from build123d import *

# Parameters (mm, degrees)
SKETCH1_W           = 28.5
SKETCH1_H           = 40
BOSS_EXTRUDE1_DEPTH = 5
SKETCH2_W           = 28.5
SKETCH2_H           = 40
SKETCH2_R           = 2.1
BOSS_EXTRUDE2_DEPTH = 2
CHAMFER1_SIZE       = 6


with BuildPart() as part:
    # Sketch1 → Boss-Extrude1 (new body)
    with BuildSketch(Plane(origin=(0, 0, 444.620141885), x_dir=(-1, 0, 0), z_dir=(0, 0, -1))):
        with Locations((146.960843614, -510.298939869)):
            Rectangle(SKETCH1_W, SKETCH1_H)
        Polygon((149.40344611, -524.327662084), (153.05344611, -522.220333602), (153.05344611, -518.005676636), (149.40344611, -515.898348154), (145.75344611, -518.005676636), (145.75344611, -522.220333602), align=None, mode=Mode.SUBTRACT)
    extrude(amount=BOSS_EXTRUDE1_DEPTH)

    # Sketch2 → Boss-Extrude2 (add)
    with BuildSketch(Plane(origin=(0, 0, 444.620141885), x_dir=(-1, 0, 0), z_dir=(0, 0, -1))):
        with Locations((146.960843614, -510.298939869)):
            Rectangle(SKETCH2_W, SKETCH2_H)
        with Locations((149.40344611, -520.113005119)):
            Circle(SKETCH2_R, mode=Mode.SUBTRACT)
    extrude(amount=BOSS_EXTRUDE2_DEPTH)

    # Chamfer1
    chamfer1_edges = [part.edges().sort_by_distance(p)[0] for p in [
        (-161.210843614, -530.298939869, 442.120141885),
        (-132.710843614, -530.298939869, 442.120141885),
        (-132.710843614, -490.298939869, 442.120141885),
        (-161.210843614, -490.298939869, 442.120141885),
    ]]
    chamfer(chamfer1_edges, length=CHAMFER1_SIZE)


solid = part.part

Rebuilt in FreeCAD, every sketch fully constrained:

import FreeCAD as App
import Part
import Sketcher
Q = App.Units.Quantity


def edges_at(feature, points):
    """Names of the edges that pass closest to the given points."""
    edges = feature.Shape.Edges
    near = lambda p: min(range(len(edges)), key=lambda i: edges[i].distToShape(Part.Vertex(*p))[0])
    return sorted({f"Edge{near(p) + 1}" for p in points})

doc = App.newDocument("Part")
body = doc.addObject("PartDesign::Body", "Body")

# Sketch on XY plane
sketch1 = body.newObject("Sketcher::SketchObject", "Sketch")
sketch1.AttachmentSupport = (doc.getObject("XY_Plane"), [""])
sketch1.MapMode = "FlatFace"
sketch1.AttachmentOffset = App.Placement(App.Vector(0, 0, 444.620142), App.Rotation())
sketch1.addGeometry([
    Part.LineSegment(App.Vector(-132.710844, -490.29894, 0), App.Vector(-132.710844, -530.29894, 0)),  # 0
    Part.LineSegment(App.Vector(-132.710844, -530.29894, 0), App.Vector(-161.210844, -530.29894, 0)),  # 1
    Part.LineSegment(App.Vector(-161.210844, -530.29894, 0), App.Vector(-161.210844, -490.29894, 0)),  # 2
    Part.LineSegment(App.Vector(-161.210844, -490.29894, 0), App.Vector(-132.710844, -490.29894, 0)),  # 3
    Part.LineSegment(App.Vector(-153.053446, -522.220334, 0), App.Vector(-149.403446, -524.327662, 0)),  # 4
    Part.LineSegment(App.Vector(-149.403446, -524.327662, 0), App.Vector(-145.753446, -522.220334, 0)),  # 5
    Part.LineSegment(App.Vector(-145.753446, -522.220334, 0), App.Vector(-145.753446, -518.005677, 0)),  # 6
    Part.LineSegment(App.Vector(-145.753446, -518.005677, 0), App.Vector(-149.403446, -515.898348, 0)),  # 7
    Part.LineSegment(App.Vector(-149.403446, -515.898348, 0), App.Vector(-153.053446, -518.005677, 0)),  # 8
    Part.LineSegment(App.Vector(-153.053446, -518.005677, 0), App.Vector(-153.053446, -522.220334, 0)),  # 9
], False)
sketch1.addConstraint([
    Sketcher.Constraint("Coincident", 0, 2, 1, 1),
    Sketcher.Constraint("Coincident", 1, 2, 2, 1),
    Sketcher.Constraint("Coincident", 2, 2, 3, 1),
    Sketcher.Constraint("Coincident", 3, 2, 0, 1),
    Sketcher.Constraint("Coincident", 4, 2, 5, 1),
    Sketcher.Constraint("Coincident", 5, 2, 6, 1),
    Sketcher.Constraint("Coincident", 6, 2, 7, 1),
    Sketcher.Constraint("Coincident", 7, 2, 8, 1),
    Sketcher.Constraint("Coincident", 8, 2, 9, 1),
    Sketcher.Constraint("Coincident", 9, 2, 4, 1),
    Sketcher.Constraint("Vertical", 0),
    Sketcher.Constraint("Horizontal", 1),
    Sketcher.Constraint("Vertical", 2),
    Sketcher.Constraint("Horizontal", 3),
    Sketcher.Constraint("Vertical", 6),
    Sketcher.Constraint("Vertical", 9),
    Sketcher.Constraint("Parallel", 4, 7),
    Sketcher.Constraint("Parallel", 5, 8),
    Sketcher.Constraint("Horizontal", 6, 2, 8, 2),
    Sketcher.Constraint("Horizontal", 5, 2, 9, 2),
    Sketcher.Constraint("Vertical", 4, 2, 7, 2),
    Sketcher.Constraint("DistanceY", 0, 2, 0, 1, Q("40 mm")),
    Sketcher.Constraint("Angle", 4, Q("-30 deg")),
    Sketcher.Constraint("DistanceX", 1, 2, 1, 1, Q("28.5 mm")),
    Sketcher.Constraint("DistanceX", 8, 2, 6, 2, Q("7.3 mm")),
    Sketcher.Constraint("DistanceY", 6, 1, 6, 2, Q("4.214657 mm")),
    Sketcher.Constraint("DistanceY", 0, 2, -1, 1, Q("530.29894 mm")),
    Sketcher.Constraint("DistanceY", 7, 2, -1, 1, Q("515.898348 mm")),
    Sketcher.Constraint("DistanceX", 0, 2, -1, 1, Q("132.710844 mm")),
    Sketcher.Constraint("DistanceX", 4, 2, -1, 1, Q("149.403446 mm")),
])
pad1 = body.newObject("PartDesign::Pad", "Pad")
pad1.Profile = sketch1
pad1.Length = 5
pad1.Reversed = True

# Sketch on XY plane
sketch2 = body.newObject("Sketcher::SketchObject", "Sketch001")
sketch2.AttachmentSupport = (doc.getObject("XY_Plane"), [""])
sketch2.MapMode = "FlatFace"
sketch2.AttachmentOffset = App.Placement(App.Vector(0, 0, 444.620142), App.Rotation())
sketch2.addGeometry([
    Part.LineSegment(App.Vector(-132.710844, -490.29894, 0), App.Vector(-132.710844, -530.29894, 0)),  # 0
    Part.LineSegment(App.Vector(-132.710844, -530.29894, 0), App.Vector(-161.210844, -530.29894, 0)),  # 1
    Part.LineSegment(App.Vector(-161.210844, -530.29894, 0), App.Vector(-161.210844, -490.29894, 0)),  # 2
    Part.LineSegment(App.Vector(-161.210844, -490.29894, 0), App.Vector(-132.710844, -490.29894, 0)),  # 3
    Part.Circle(App.Vector(-149.403446, -520.113005, 0), App.Vector(0, 0, 1), 2.1),  # 4
], False)
sketch2.addConstraint([
    Sketcher.Constraint("Coincident", 0, 2, 1, 1),
    Sketcher.Constraint("Coincident", 1, 2, 2, 1),
    Sketcher.Constraint("Coincident", 2, 2, 3, 1),
    Sketcher.Constraint("Coincident", 3, 2, 0, 1),
    Sketcher.Constraint("Vertical", 0),
    Sketcher.Constraint("Horizontal", 1),
    Sketcher.Constraint("Vertical", 2),
    Sketcher.Constraint("Horizontal", 3),
    Sketcher.Constraint("Diameter", 4, Q("4.2 mm")),
    Sketcher.Constraint("DistanceY", 0, 2, 0, 1, Q("40 mm")),
    Sketcher.Constraint("DistanceX", 1, 2, 1, 1, Q("28.5 mm")),
    Sketcher.Constraint("DistanceY", 0, 2, -1, 1, Q("530.29894 mm")),
    Sketcher.Constraint("DistanceX", 4, 3, -1, 1, Q("149.403446 mm")),
    Sketcher.Constraint("DistanceY", 4, 3, -1, 1, Q("520.113005 mm")),
    Sketcher.Constraint("DistanceX", 0, 2, -1, 1, Q("132.710844 mm")),
])
pad2 = body.newObject("PartDesign::Pad", "Pad001")
pad2.Profile = sketch2
pad2.Length = 2
pad2.Reversed = True
doc.recompute()

chamfer = body.newObject("PartDesign::Chamfer", "Chamfer")
chamfer.Base = (pad2, edges_at(pad2, [
    (-161.211, -530.299, 442.12),
    (-132.711, -530.299, 442.12),
    (-132.711, -490.299, 442.12),
    (-161.211, -490.299, 442.12),
]))
chamfer.Size = 6

doc.recompute()
